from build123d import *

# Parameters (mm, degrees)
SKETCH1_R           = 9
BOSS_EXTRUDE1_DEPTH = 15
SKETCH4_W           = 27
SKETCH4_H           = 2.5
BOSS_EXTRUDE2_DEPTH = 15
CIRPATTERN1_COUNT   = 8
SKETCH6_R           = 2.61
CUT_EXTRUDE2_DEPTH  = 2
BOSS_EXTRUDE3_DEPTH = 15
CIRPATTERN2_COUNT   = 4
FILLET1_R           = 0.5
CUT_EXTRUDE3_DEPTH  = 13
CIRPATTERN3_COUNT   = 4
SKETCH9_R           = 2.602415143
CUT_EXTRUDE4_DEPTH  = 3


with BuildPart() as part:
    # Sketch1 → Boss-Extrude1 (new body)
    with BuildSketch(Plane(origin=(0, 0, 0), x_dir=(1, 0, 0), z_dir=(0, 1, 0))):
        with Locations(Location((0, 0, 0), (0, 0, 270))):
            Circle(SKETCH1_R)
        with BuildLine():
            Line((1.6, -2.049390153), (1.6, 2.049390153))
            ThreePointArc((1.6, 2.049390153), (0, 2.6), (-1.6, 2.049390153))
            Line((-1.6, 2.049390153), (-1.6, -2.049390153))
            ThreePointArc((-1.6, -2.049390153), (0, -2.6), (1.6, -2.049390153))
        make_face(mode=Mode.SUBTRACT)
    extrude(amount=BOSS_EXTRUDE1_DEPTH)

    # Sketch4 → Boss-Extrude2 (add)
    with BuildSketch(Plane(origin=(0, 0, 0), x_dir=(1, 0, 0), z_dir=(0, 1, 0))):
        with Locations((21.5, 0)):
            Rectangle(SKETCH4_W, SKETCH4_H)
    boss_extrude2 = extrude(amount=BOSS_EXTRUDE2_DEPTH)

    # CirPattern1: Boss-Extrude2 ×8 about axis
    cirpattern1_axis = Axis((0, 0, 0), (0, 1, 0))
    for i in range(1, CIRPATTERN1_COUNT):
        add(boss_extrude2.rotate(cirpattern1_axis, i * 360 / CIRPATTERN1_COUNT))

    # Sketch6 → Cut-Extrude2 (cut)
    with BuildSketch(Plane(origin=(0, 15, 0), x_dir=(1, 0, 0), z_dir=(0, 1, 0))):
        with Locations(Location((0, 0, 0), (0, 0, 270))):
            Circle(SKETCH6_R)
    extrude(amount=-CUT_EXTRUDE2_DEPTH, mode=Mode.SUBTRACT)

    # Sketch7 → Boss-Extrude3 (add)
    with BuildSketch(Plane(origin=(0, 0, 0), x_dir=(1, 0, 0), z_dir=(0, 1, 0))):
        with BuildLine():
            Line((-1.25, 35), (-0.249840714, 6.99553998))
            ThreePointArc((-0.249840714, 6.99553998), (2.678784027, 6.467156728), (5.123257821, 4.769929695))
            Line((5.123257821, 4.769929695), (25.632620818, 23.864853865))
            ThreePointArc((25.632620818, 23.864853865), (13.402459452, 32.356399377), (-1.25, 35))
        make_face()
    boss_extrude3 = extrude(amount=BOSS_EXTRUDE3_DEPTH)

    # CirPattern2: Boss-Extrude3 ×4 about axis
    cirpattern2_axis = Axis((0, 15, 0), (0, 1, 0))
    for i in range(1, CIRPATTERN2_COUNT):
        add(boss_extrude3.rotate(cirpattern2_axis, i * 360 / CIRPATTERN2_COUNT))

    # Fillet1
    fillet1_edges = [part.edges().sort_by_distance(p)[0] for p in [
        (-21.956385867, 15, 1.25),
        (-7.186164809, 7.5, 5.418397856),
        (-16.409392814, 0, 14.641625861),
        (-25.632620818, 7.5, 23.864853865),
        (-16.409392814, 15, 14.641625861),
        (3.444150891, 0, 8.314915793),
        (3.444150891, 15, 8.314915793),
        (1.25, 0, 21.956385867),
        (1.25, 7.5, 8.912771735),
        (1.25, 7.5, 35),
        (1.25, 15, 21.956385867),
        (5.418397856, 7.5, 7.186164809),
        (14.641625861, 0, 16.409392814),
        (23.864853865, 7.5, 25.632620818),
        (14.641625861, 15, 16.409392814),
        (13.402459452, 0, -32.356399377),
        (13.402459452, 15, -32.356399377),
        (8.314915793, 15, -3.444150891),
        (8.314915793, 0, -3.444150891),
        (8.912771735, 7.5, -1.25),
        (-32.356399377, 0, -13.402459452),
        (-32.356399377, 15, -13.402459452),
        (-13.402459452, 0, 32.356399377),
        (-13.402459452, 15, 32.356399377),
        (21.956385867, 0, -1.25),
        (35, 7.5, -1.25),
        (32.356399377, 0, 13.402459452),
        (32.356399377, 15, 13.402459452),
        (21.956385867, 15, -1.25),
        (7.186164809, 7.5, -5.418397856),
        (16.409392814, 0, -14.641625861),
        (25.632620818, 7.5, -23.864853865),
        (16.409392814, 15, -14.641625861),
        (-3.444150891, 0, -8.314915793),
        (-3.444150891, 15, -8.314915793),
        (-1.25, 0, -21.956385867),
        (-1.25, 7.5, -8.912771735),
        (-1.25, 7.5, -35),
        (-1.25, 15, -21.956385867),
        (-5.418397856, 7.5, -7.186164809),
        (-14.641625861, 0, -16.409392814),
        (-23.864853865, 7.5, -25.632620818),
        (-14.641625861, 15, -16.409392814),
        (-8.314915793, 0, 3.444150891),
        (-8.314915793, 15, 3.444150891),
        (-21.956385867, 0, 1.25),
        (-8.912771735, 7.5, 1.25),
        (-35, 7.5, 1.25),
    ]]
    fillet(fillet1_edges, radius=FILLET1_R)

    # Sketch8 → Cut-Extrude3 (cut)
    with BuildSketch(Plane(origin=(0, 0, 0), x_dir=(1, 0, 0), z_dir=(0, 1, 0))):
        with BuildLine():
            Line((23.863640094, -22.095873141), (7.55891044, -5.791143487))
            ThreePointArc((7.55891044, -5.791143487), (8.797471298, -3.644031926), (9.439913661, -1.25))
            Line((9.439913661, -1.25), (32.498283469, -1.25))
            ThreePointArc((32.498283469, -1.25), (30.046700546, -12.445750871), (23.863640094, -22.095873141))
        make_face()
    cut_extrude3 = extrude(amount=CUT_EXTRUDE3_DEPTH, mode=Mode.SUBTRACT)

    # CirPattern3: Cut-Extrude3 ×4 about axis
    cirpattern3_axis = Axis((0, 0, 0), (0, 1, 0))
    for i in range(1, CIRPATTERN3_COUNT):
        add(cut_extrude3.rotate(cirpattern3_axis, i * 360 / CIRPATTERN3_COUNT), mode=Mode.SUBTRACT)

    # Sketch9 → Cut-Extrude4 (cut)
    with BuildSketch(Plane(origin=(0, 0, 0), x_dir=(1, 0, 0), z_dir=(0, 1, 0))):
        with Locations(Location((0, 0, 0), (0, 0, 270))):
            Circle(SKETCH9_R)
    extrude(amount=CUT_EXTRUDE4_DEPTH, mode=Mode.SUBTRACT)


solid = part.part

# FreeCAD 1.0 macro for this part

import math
import FreeCAD as App
import Part
import Sketcher
from FreeCAD import Vector
Q = App.Units.Quantity


def edges_at(feature, points):
    """Names of the edges that pass closest to the given points."""
    edges = feature.Shape.Edges
    near = lambda p: min(range(len(edges)), key=lambda i: edges[i].distToShape(Part.Vertex(*p))[0])
    return sorted({f"Edge{near(p) + 1}" for p in points})


def add_polygon(sketch, points):
    """Adds a closed chain of lines whose ends are joined by coincident constraints."""
    first, n = sketch.GeometryCount, len(points)
    for a, b in zip(points, points[1:] + points[:1]):
        sketch.addGeometry(Part.LineSegment(App.Vector(*a, 0), App.Vector(*b, 0)), False)
    for i in range(n):
        sketch.addConstraint(Sketcher.Constraint("Coincident", first + i, 2, first + (i + 1) % n, 1))

doc = App.newDocument("Part")
body = doc.addObject("PartDesign::Body", "Body")

sketch1 = body.newObject("Sketcher::SketchObject", "Sketch")
sketch1.AttachmentSupport = (doc.getObject("XZ_Plane"), [""])
sketch1.MapMode = "FlatFace"
sketch1.addGeometry([
    Part.Circle(Vector(0, 0, 0), Vector(0, 0, 1), 9),
    Part.LineSegment(Vector(1.6, -2, 0), Vector(1.6, 2, 0)),
    Part.ArcOfCircle(Part.Circle(Vector(0, 0, 0), Vector(0, 0, 1), 2.6), math.radians(52), math.radians(128)),
    Part.LineSegment(Vector(-1.6, 2, 0), Vector(-1.6, -2, 0)),
    Part.ArcOfCircle(Part.Circle(Vector(0, 0, 0), Vector(0, 0, 1), 2.6), math.radians(-128), math.radians(-52)),
], False)
sketch1.addConstraint([
    Sketcher.Constraint("Coincident", 1, 2, 2, 1),
    Sketcher.Constraint("Coincident", 2, 2, 3, 1),
    Sketcher.Constraint("Coincident", 3, 2, 4, 1),
    Sketcher.Constraint("Coincident", 4, 2, 1, 1),
    Sketcher.Constraint("Vertical", 1),
    Sketcher.Constraint("Vertical", 3),
    Sketcher.Constraint("Coincident", 0, 3, -1, 1),
    Sketcher.Constraint("Coincident", 2, 3, -1, 1),
    Sketcher.Constraint("Coincident", 4, 3, -1, 1),
    Sketcher.Constraint("Equal", 2, 4),
    Sketcher.Constraint("Horizontal", 1, 2, 2, 2),
    Sketcher.Constraint("Diameter", 0, Q("18 mm")),
    Sketcher.Constraint("Radius", 2, Q("2.6 mm")),
    Sketcher.Constraint("DistanceX", -1, 1, 1, 2, Q("1.6 mm")),
])
pad1 = body.newObject("PartDesign::Pad", "Pad")
pad1.Profile = sketch1
pad1.Length = 15
pad1.Reversed = True

sketch2 = body.newObject("Sketcher::SketchObject", "Sketch001")
sketch2.AttachmentSupport = (doc.getObject("XZ_Plane"), [""])
sketch2.MapMode = "FlatFace"
add_polygon(sketch2, [(8, -1.2), (8, 1.2), (35, 1.2), (35, -1.2)])
sketch2.addConstraint([
    Sketcher.Constraint("Vertical", 0),
    Sketcher.Constraint("Horizontal", 1),
    Sketcher.Constraint("Vertical", 2),
    Sketcher.Constraint("Horizontal", 3),
    Sketcher.Constraint("DistanceX", 1, 1, 1, 2, Q("27 mm")),
    Sketcher.Constraint("DistanceY", 0, 1, 0, 2, Q("2.5 mm")),
    Sketcher.Constraint("DistanceX", -1, 1, 0, 2, Q("8 mm")),
    Sketcher.Constraint("DistanceY", -1, 1, 0, 2, Q("1.25 mm")),
])
pad2 = body.newObject("PartDesign::Pad", "Pad001")
pad2.Profile = sketch2
pad2.Length = 15
pad2.Reversed = True
doc.recompute()

polarpattern = body.newObject("PartDesign::PolarPattern", "PolarPattern")
polarpattern.Originals = [pad2]
polarpattern.Axis = (doc.getObject("Y_Axis"), [""])
polarpattern.Angle = 360
polarpattern.Occurrences = 8
body.Tip = polarpattern

sketch3 = body.newObject("Sketcher::SketchObject", "Sketch002")
sketch3.AttachmentSupport = (doc.getObject("XZ_Plane"), [""])
sketch3.MapMode = "FlatFace"
sketch3.AttachmentOffset = App.Placement(Vector(0, 0, -15), App.Rotation())
sketch3.addGeometry(Part.Circle(Vector(0, 0, 0), Vector(0, 0, 1), 2.6), False)
sketch3.addConstraint([
    Sketcher.Constraint("Coincident", 0, 3, -1, 1),
    Sketcher.Constraint("Diameter", 0, Q("5.22 mm")),
])
pocket1 = body.newObject("PartDesign::Pocket", "Pocket")
pocket1.Profile = sketch3
pocket1.Length = 2
pocket1.Reversed = True

sketch4 = body.newObject("Sketcher::SketchObject", "Sketch003")
sketch4.AttachmentSupport = (doc.getObject("XZ_Plane"), [""])
sketch4.MapMode = "FlatFace"
sketch4.addGeometry([
    Part.LineSegment(Vector(-1, -35, 0), Vector(0, -7, 0)),
    Part.ArcOfCircle(Part.Circle(Vector(0, 0, 0), Vector(0, 0, 1), 7), math.radians(-92), math.radians(-43)),
    Part.LineSegment(Vector(5, -5, 0), Vector(26, -24, 0)),
    Part.ArcOfCircle(Part.Circle(Vector(0, 0, 0), Vector(0, 0, 1), 35), math.radians(-92), math.radians(-43)),
], False)
sketch4.addConstraint([
    Sketcher.Constraint("Coincident", 0, 2, 1, 1),
    Sketcher.Constraint("Coincident", 1, 2, 2, 1),
    Sketcher.Constraint("Coincident", 2, 2, 3, 2),
    Sketcher.Constraint("Coincident", 3, 1, 0, 1),
    Sketcher.Constraint("Coincident", 1, 3, -1, 1),
    Sketcher.Constraint("Coincident", 3, 3, -1, 1),
    Sketcher.Constraint("Radius", 1, Q("7 mm")),
    Sketcher.Constraint("DistanceY", 3, 1, -1, 1, Q("35 mm")),
    Sketcher.Constraint("DistanceX", 3, 1, -1, 1, Q("1.25 mm")),
    Sketcher.Constraint("DistanceX", 0, 2, 1, 2, Q("5.373099 mm")),
    Sketcher.Constraint("DistanceX", 0, 2, -1, 1, Q("0.249841 mm")),
    Sketcher.Constraint("DistanceX", -1, 1, 2, 2, Q("25.632621 mm")),
])
pad3 = body.newObject("PartDesign::Pad", "Pad002")
pad3.Profile = sketch4
pad3.Length = 15
pad3.Reversed = True
doc.recompute()

polarpattern2 = body.newObject("PartDesign::PolarPattern", "PolarPattern001")
polarpattern2.Originals = [pad3]
polarpattern2.Axis = (doc.getObject("Y_Axis"), [""])
polarpattern2.Angle = 360
polarpattern2.Occurrences = 4
body.Tip = polarpattern2
doc.recompute()

fillet = body.newObject("PartDesign::Fillet", "Fillet")
fillet.Base = (polarpattern2, edges_at(polarpattern2, [
    (-21.956, 15, 1.25),
    (-7.186, 7.5, 5.418),
    (-16.409, 0, 14.642),
    (-25.633, 7.5, 23.865),
    (-16.409, 15, 14.642),
    (3.444, 0, 8.315),
    (3.444, 15, 8.315),
    (1.25, 0, 21.956),
    (1.25, 7.5, 8.913),
    (1.25, 7.5, 35),
    (1.25, 15, 21.956),
    (5.418, 7.5, 7.186),
    (14.642, 0, 16.409),
    (23.865, 7.5, 25.633),
    (14.642, 15, 16.409),
    (13.402, 0, -32.356),
    (13.402, 15, -32.356),
    (8.315, 15, -3.444),
    (8.315, 0, -3.444),
    (8.913, 7.5, -1.25),
    (-32.356, 0, -13.402),
    (-32.356, 15, -13.402),
    (-13.402, 0, 32.356),
    (-13.402, 15, 32.356),
    (21.956, 0, -1.25),
    (35, 7.5, -1.25),
    (32.356, 0, 13.402),
    (32.356, 15, 13.402),
    (21.956, 15, -1.25),
    (7.186, 7.5, -5.418),
    (16.409, 0, -14.642),
    (25.633, 7.5, -23.865),
    (16.409, 15, -14.642),
    (-3.444, 0, -8.315),
    (-3.444, 15, -8.315),
    (-1.25, 0, -21.956),
    (-1.25, 7.5, -8.913),
    (-1.25, 7.5, -35),
    (-1.25, 15, -21.956),
    (-5.418, 7.5, -7.186),
    (-14.642, 0, -16.409),
    (-23.865, 7.5, -25.633),
    (-14.642, 15, -16.409),
    (-8.315, 0, 3.444),
    (-8.315, 15, 3.444),
    (-21.956, 0, 1.25),
    (-8.913, 7.5, 1.25),
    (-35, 7.5, 1.25),
]))
fillet.Radius = 0.5

sketch5 = body.newObject("Sketcher::SketchObject", "Sketch004")
sketch5.AttachmentSupport = (doc.getObject("XZ_Plane"), [""])
sketch5.MapMode = "FlatFace"
sketch5.addGeometry([
    Part.LineSegment(Vector(7.6, 5.8, 0), Vector(23.9, 22.1, 0)),
    Part.ArcOfCircle(Part.Circle(Vector(0, 0, 0), Vector(0, 0, 1), 32.5), math.radians(2), math.radians(43)),
    Part.LineSegment(Vector(32.5, 1.2, 0), Vector(9.4, 1.2, 0)),
    Part.ArcOfCircle(Part.Circle(Vector(0, 0, 0), Vector(0, 0, 1), 9.5), math.radians(8), math.radians(37)),
], False)
sketch5.addConstraint([
    Sketcher.Constraint("Coincident", 0, 2, 1, 2),
    Sketcher.Constraint("Coincident", 1, 1, 2, 1),
    Sketcher.Constraint("Coincident", 2, 2, 3, 1),
    Sketcher.Constraint("Coincident", 3, 2, 0, 1),
    Sketcher.Constraint("Horizontal", 2),
    Sketcher.Constraint("Coincident", 1, 3, -1, 1),
    Sketcher.Constraint("Coincident", 3, 3, -1, 1),
    Sketcher.Constraint("Angle", 0, Q("45 deg")),
    Sketcher.Constraint("DistanceY", -1, 1, 1, 1, Q("1.25 mm")),
    Sketcher.Constraint("Radius", 1, Q("32.522314 mm")),
    Sketcher.Constraint("Radius", 3, Q("9.522314 mm")),
    Sketcher.Constraint("Distance", 0, Q("23.05837 mm")),
])
pocket2 = body.newObject("PartDesign::Pocket", "Pocket001")
pocket2.Profile = sketch5
pocket2.Length = 13
doc.recompute()

polarpattern3 = body.newObject("PartDesign::PolarPattern", "PolarPattern002")
polarpattern3.Originals = [pocket2]
polarpattern3.Axis = (doc.getObject("Y_Axis"), [""])
polarpattern3.Angle = 360
polarpattern3.Occurrences = 4
body.Tip = polarpattern3

sketch6 = body.newObject("Sketcher::SketchObject", "Sketch005")
sketch6.AttachmentSupport = (doc.getObject("XZ_Plane"), [""])
sketch6.MapMode = "FlatFace"
sketch6.addGeometry(Part.Circle(Vector(0, 0, 0), Vector(0, 0, 1), 2.6), False)
sketch6.addConstraint([
    Sketcher.Constraint("Coincident", 0, 3, -1, 1),
    Sketcher.Constraint("Diameter", 0, Q("5.20483 mm")),
])
pocket3 = body.newObject("PartDesign::Pocket", "Pocket002")
pocket3.Profile = sketch6
pocket3.Length = 3

doc.recompute()
